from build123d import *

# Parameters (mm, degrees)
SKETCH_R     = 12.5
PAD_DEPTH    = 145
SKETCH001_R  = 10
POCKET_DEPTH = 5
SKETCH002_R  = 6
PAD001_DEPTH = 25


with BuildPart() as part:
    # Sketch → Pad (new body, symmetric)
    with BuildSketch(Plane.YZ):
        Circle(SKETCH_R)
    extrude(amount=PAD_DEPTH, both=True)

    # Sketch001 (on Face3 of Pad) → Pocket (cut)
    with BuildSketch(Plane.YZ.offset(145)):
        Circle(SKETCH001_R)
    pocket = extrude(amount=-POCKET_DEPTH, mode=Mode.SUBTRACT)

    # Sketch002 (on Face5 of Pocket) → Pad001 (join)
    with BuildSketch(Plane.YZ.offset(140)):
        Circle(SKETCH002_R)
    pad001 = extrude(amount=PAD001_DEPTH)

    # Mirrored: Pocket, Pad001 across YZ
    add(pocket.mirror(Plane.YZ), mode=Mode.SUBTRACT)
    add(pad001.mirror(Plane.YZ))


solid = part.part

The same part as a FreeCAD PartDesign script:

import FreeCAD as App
import Part
import Sketcher
from FreeCAD import Vector
Q = App.Units.Quantity

doc = App.newDocument("Part")
body = doc.addObject("PartDesign::Body", "Body")

sketch1 = body.newObject("Sketcher::SketchObject", "Sketch")
sketch1.AttachmentSupport = (doc.getObject("YZ_Plane"), [""])
sketch1.MapMode = "FlatFace"
sketch1.addGeometry(Part.Circle(Vector(0, 0, 0), Vector(0, 0, 1), 12), False)
sketch1.addConstraint(Sketcher.Constraint("Coincident", 0, 3, -1, 1))
sketch1.addConstraint(Sketcher.Constraint("Diameter", 0, Q("25 mm")))
pad1 = body.newObject("PartDesign::Pad", "Pad")
pad1.Profile = sketch1
pad1.Length = 290
pad1.Midplane = True

sketch2 = body.newObject("Sketcher::SketchObject", "Sketch001")
sketch2.AttachmentSupport = (doc.getObject("YZ_Plane"), [""])
sketch2.MapMode = "FlatFace"
sketch2.AttachmentOffset = App.Placement(Vector(0, 0, 145), App.Rotation())
sketch2.addGeometry(Part.Circle(Vector(0, 0, 0), Vector(0, 0, 1), 10), False)
sketch2.addConstraint(Sketcher.Constraint("Coincident", 0, 3, -1, 1))
sketch2.addConstraint(Sketcher.Constraint("Diameter", 0, Q("20 mm")))
pocket1 = body.newObject("PartDesign::Pocket", "Pocket")
pocket1.Profile = sketch2
pocket1.Length = 5

sketch3 = body.newObject("Sketcher::SketchObject", "Sketch002")
sketch3.AttachmentSupport = (doc.getObject("YZ_Plane"), [""])
sketch3.MapMode = "FlatFace"
sketch3.AttachmentOffset = App.Placement(Vector(0, 0, 140), App.Rotation())
sketch3.addGeometry(Part.Circle(Vector(0, 0, 0), Vector(0, 0, 1), 6), False)
sketch3.addConstraint(Sketcher.Constraint("Coincident", 0, 3, -1, 1))
sketch3.addConstraint(Sketcher.Constraint("Diameter", 0, Q("12 mm")))
pad2 = body.newObject("PartDesign::Pad", "Pad001")
pad2.Profile = sketch3
pad2.Length = 25
doc.recompute()

mirrored = body.newObject("PartDesign::Mirrored", "Mirrored")
mirrored.Originals = [pocket1, pad2]
mirrored.MirrorPlane = (doc.getObject("YZ_Plane"), [""])
body.Tip = mirrored

doc.recompute()
